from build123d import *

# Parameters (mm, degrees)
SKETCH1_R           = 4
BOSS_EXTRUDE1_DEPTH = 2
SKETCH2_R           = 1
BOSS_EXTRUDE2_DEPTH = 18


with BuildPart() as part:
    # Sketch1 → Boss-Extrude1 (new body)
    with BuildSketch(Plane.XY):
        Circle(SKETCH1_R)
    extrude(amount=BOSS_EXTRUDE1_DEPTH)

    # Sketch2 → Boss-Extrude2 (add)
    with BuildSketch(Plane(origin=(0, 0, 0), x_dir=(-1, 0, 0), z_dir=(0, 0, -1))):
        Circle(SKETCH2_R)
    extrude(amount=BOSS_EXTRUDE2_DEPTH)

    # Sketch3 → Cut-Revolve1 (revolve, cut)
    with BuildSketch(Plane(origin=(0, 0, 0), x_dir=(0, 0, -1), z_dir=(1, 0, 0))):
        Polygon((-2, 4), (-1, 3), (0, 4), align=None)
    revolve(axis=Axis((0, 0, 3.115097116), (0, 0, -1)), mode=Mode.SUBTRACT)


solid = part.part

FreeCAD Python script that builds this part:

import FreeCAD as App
import Part
import Sketcher

V = App.Vector
Q = App.Units.Quantity

doc = App.newDocument("Part")
body = doc.addObject("PartDesign::Body", "Body")

sketch1 = body.newObject("Sketcher::SketchObject", "Sketch")
sketch1.AttachmentSupport = (doc.getObject("XY_Plane"), [""])
sketch1.MapMode = "FlatFace"
sketch1.addGeometry(Part.Circle(V(0, 0, 0), V(0, 0, 1), 4), False)
sketch1.addConstraint([
    Sketcher.Constraint("Coincident", 0, 3, -1, 1),
    Sketcher.Constraint("Diameter", 0, Q("8 mm")),
])
pad1 = body.newObject("PartDesign::Pad", "Pad")
pad1.Profile = sketch1
pad1.Length = 2

sketch2 = body.newObject("Sketcher::SketchObject", "Sketch001")
sketch2.AttachmentSupport = (doc.getObject("XY_Plane"), [""])
sketch2.MapMode = "FlatFace"
sketch2.addGeometry(Part.Circle(V(0, 0, 0), V(0, 0, 1), 1), False)
sketch2.addConstraint([
    Sketcher.Constraint("Coincident", 0, 3, -1, 1),
    Sketcher.Constraint("Diameter", 0, Q("2 mm")),
])
pad2 = body.newObject("PartDesign::Pad", "Pad001")
pad2.Profile = sketch2
pad2.Length = 18
pad2.Reversed = True

sketch3 = body.newObject("Sketcher::SketchObject", "Sketch002")
sketch3.AttachmentSupport = (doc.getObject("YZ_Plane"), [""])
sketch3.MapMode = "FlatFace"
sketch3.addGeometry([
    Part.LineSegment(V(4, 2, 0), V(3, 1, 0)),
    Part.LineSegment(V(3, 1, 0), V(4, 0, 0)),
    Part.LineSegment(V(4, 0, 0), V(4, 2, 0)),
], False)
sketch3.addConstraint([
    Sketcher.Constraint("Coincident", 0, 2, 1, 1),
    Sketcher.Constraint("Coincident", 1, 2, 2, 1),
    Sketcher.Constraint("Coincident", 2, 2, 0, 1),
    Sketcher.Constraint("Vertical", 2),
    Sketcher.Constraint("PointOnObject", 1, 2, -1),
    Sketcher.Constraint("Perpendicular", 0, 1),
    Sketcher.Constraint("Equal", 0, 1),
    Sketcher.Constraint("DistanceY", 2, 1, 2, 2, Q("2 mm")),
    Sketcher.Constraint("DistanceX", -1, 1, 0, 2, Q("3 mm")),
])
groove = body.newObject("PartDesign::Groove", "Groove")
groove.Profile = sketch3
groove.ReferenceAxis = (sketch3, ["V_Axis"])
groove.Angle = 360

doc.recompute()
